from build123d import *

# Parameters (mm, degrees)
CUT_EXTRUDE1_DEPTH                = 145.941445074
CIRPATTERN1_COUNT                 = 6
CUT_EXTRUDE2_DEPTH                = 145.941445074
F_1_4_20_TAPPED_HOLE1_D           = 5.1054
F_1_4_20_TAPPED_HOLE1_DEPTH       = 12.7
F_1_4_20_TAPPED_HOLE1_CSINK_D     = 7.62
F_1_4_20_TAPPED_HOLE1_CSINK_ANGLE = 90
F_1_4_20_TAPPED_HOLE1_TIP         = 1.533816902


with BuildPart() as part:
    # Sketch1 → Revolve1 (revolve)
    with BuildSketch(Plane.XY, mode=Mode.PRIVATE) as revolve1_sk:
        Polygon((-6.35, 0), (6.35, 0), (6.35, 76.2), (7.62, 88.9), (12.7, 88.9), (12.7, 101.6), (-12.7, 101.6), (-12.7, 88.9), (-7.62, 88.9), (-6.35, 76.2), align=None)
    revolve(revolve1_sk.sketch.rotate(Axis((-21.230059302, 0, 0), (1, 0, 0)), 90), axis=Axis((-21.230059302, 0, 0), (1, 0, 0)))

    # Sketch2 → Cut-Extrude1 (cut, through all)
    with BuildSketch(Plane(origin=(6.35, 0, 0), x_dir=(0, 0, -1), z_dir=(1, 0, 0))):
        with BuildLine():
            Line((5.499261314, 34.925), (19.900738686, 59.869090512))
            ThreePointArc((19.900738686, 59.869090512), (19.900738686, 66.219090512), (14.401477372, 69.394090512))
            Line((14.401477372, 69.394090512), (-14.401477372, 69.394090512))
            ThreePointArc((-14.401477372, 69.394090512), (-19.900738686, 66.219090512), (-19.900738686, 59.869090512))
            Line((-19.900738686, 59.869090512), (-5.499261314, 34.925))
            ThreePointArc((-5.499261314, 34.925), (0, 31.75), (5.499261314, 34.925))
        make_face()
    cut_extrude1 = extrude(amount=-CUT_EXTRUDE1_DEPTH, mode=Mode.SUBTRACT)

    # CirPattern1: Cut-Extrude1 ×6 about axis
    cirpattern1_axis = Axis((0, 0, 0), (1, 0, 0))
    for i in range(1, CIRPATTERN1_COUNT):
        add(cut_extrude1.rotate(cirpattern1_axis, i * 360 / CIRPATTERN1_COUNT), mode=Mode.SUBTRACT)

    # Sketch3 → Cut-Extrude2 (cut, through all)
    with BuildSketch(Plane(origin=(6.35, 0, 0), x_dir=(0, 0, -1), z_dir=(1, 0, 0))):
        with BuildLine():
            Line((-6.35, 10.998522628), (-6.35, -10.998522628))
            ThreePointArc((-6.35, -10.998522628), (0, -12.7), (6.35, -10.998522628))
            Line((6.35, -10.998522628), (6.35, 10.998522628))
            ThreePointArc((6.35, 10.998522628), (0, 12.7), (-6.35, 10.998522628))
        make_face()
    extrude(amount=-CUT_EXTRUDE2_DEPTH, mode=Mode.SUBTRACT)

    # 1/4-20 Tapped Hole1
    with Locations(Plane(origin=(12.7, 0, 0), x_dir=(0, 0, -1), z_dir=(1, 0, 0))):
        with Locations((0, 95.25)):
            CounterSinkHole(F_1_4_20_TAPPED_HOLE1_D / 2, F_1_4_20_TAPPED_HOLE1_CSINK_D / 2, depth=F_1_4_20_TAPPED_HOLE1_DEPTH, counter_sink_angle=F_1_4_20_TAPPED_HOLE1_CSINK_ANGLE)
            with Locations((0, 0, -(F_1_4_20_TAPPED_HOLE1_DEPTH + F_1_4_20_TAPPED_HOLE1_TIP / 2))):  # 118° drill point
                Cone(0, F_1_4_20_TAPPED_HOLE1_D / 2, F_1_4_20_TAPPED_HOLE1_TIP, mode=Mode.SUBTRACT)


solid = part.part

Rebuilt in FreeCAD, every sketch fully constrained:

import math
import FreeCAD as App
import Part
import Sketcher
Q = App.Units.Quantity


def add_polygon(sketch, points):
    """Adds a closed chain of lines whose ends are joined by coincident constraints."""
    first, n = sketch.GeometryCount, len(points)
    for a, b in zip(points, points[1:] + points[:1]):
        sketch.addGeometry(Part.LineSegment(App.Vector(*a, 0), App.Vector(*b, 0)), False)
    for i in range(n):
        sketch.addConstraint(Sketcher.Constraint("Coincident", first + i, 2, first + (i + 1) % n, 1))

doc = App.newDocument("Part")
params = doc.addObject("Spreadsheet::Sheet", "Params")
for row, (alias, value) in enumerate([
    ("sketch1_width", "1 in"),
    ("sketch1_height", "3 in"),
    ("sketch1_width2", "0.5 in"),
    ("sketch1_width3", "0.2 in"),
    ("revolution_angle", "360 deg"),
    ("sketch2_radius", "0.25 in"),
    ("sketch3_radius", "0.5 in"),
    ("sketch4_diameter", "0.201 in"),
    ("hole_diameter", "0.201 in"),
    ("hole_depth", "0.5 in"),
    ("hole_csink_diameter", "0.3 in"),
], start=1):
    params.set(f"A{row}", alias)
    params.set(f"B{row}", "=" + value)
    params.setAlias(f"B{row}", alias)

body = doc.addObject("PartDesign::Body", "Body")

# Sketch on XY plane
sketch1 = doc.addObject("Sketcher::SketchObject", "Sketch")
body.addObject(sketch1)
sketch1.AttachmentSupport = (doc.XY_Plane, [""])
sketch1.MapMode = "FlatFace"
add_polygon(sketch1, [(-6, 0), (6, 0), (6, 76), (8, 89), (13, 89), (13, 102), (-13, 102), (-13, 89), (-8, 89), (-6, 76)])  # lines 0-9
sketch1.addConstraint(Sketcher.Constraint("Horizontal", 0))
sketch1.addConstraint(Sketcher.Constraint("Vertical", 1))
sketch1.addConstraint(Sketcher.Constraint("Horizontal", 3))
sketch1.addConstraint(Sketcher.Constraint("Vertical", 4))
sketch1.addConstraint(Sketcher.Constraint("Horizontal", 5))
sketch1.addConstraint(Sketcher.Constraint("Vertical", 6))
sketch1.addConstraint(Sketcher.Constraint("Horizontal", 7))
sketch1.addConstraint(Sketcher.Constraint("Vertical", 9))
sketch1.addConstraint(Sketcher.Constraint("Symmetric", 0, 2, 9, 2, -1, 1))
sketch1.addConstraint(Sketcher.Constraint("Symmetric", 3, 2, 6, 2, -2))
sketch1.addConstraint(Sketcher.Constraint("Horizontal", 1, 2, 8, 2))
sketch1.addConstraint(Sketcher.Constraint("Equal", 3, 7))
sketch1.addConstraint(Sketcher.Constraint("Equal", 0, 4))
sketch1.addConstraint(Sketcher.Constraint("DistanceX", 5, 2, 5, 1, Q("1 in")))
sketch1.addConstraint(Sketcher.Constraint("DistanceY", 1, 1, 1, 2, Q("3 in")))
sketch1.addConstraint(Sketcher.Constraint("DistanceX", 0, 1, 0, 2, Q("0.5 in")))
sketch1.addConstraint(Sketcher.Constraint("DistanceX", 3, 1, 3, 2, Q("0.2 in")))
sketch1.addConstraint(Sketcher.Constraint("DistanceY", -1, 1, 4, 2, Q("4 in")))
sketch1.setExpression("Constraints[23]", "Params.sketch1_width")
sketch1.setExpression("Constraints[24]", "Params.sketch1_height")
sketch1.setExpression("Constraints[25]", "Params.sketch1_width2")
sketch1.setExpression("Constraints[26]", "Params.sketch1_width3")
revolution = doc.addObject("PartDesign::Revolution", "Revolution")
body.addObject(revolution)
revolution.Profile = sketch1
revolution.ReferenceAxis = (sketch1, ["H_Axis"])
revolution.setExpression("Angle", "Params.revolution_angle")

# Sketch on YZ plane
sketch2 = doc.addObject("Sketcher::SketchObject", "Sketch001")
body.addObject(sketch2)
sketch2.AttachmentSupport = (doc.YZ_Plane, [""])
sketch2.MapMode = "FlatFace"
sketch2.AttachmentOffset = App.Placement(App.Vector(0, 0, 0.25 * 25.4), App.Rotation())
sketch2.addGeometry(Part.LineSegment(App.Vector(35, -5, 0), App.Vector(60, -20, 0)), False)
sketch2.addGeometry(Part.ArcOfCircle(Part.Circle(App.Vector(63, -14, 0), App.Vector(0, 0, 1), 6), math.radians(-120), math.radians(0)), False)
sketch2.addGeometry(Part.LineSegment(App.Vector(69, -14, 0), App.Vector(69, 14, 0)), False)
sketch2.addGeometry(Part.ArcOfCircle(Part.Circle(App.Vector(63, 14, 0), App.Vector(0, 0, 1), 6), math.radians(0), math.radians(120)), False)
sketch2.addGeometry(Part.LineSegment(App.Vector(60, 20, 0), App.Vector(35, 5, 0)), False)
sketch2.addGeometry(Part.ArcOfCircle(Part.Circle(App.Vector(38, 0, 0), App.Vector(0, 0, 1), 6), math.radians(120), math.radians(240)), False)
sketch2.addConstraint(Sketcher.Constraint("Tangent", 0, 2, 1, 1))
sketch2.addConstraint(Sketcher.Constraint("Tangent", 1, 2, 2, 1))
sketch2.addConstraint(Sketcher.Constraint("Tangent", 2, 2, 3, 1))
sketch2.addConstraint(Sketcher.Constraint("Tangent", 3, 2, 4, 1))
sketch2.addConstraint(Sketcher.Constraint("Tangent", 4, 2, 5, 1))
sketch2.addConstraint(Sketcher.Constraint("Tangent", 5, 2, 0, 1))
sketch2.addConstraint(Sketcher.Constraint("Vertical", 2))
sketch2.addConstraint(Sketcher.Constraint("Equal", 1, 3))
sketch2.addConstraint(Sketcher.Constraint("Equal", 3, 5))
sketch2.addConstraint(Sketcher.Constraint("Symmetric", 0, 2, 3, 2, -1))
sketch2.addConstraint(Sketcher.Constraint("Radius", 1, Q("0.25 in")))
sketch2.addConstraint(Sketcher.Constraint("Angle", 0, Q("-30 deg")))
sketch2.addConstraint(Sketcher.Constraint("DistanceX", -1, 1, 5, 3, Q("1.5 in")))
sketch2.addConstraint(Sketcher.Constraint("DistanceY", 2, 1, 2, 2, 28.802955))
sketch2.setExpression("Constraints[10]", "Params.sketch2_radius")
pocket1 = doc.addObject("PartDesign::Pocket", "Pocket")
body.addObject(pocket1)
pocket1.Profile = sketch2
pocket1.Type = "ThroughAll"
doc.recompute()

polarpattern = doc.addObject("PartDesign::PolarPattern", "PolarPattern")
body.addObject(polarpattern)
polarpattern.Originals = [pocket1]
polarpattern.Axis = (doc.X_Axis, [""])
polarpattern.Angle = 360
polarpattern.Occurrences = 6
body.Tip = polarpattern

# Sketch on YZ plane
sketch3 = doc.addObject("Sketcher::SketchObject", "Sketch002")
body.addObject(sketch3)
sketch3.AttachmentSupport = (doc.YZ_Plane, [""])
sketch3.MapMode = "FlatFace"
sketch3.AttachmentOffset = App.Placement(App.Vector(0, 0, 0.25 * 25.4), App.Rotation())
sketch3.addGeometry(Part.LineSegment(App.Vector(11, 6, 0), App.Vector(-11, 6, 0)), False)
sketch3.addGeometry(Part.ArcOfCircle(Part.Circle(App.Vector(0, 0, 0), App.Vector(0, 0, 1), 13), math.radians(150), math.radians(210)), False)
sketch3.addGeometry(Part.LineSegment(App.Vector(-11, -6, 0), App.Vector(11, -6, 0)), False)
sketch3.addGeometry(Part.ArcOfCircle(Part.Circle(App.Vector(0, 0, 0), App.Vector(0, 0, 1), 13), math.radians(-30), math.radians(30)), False)
sketch3.addConstraint(Sketcher.Constraint("Coincident", 0, 2, 1, 1))
sketch3.addConstraint(Sketcher.Constraint("Coincident", 1, 2, 2, 1))
sketch3.addConstraint(Sketcher.Constraint("Coincident", 2, 2, 3, 1))
sketch3.addConstraint(Sketcher.Constraint("Coincident", 3, 2, 0, 1))
sketch3.addConstraint(Sketcher.Constraint("Horizontal", 0))
sketch3.addConstraint(Sketcher.Constraint("Horizontal", 2))
sketch3.addConstraint(Sketcher.Constraint("Coincident", 1, 3, -1, 1))
sketch3.addConstraint(Sketcher.Constraint("Coincident", 3, 3, -1, 1))
sketch3.addConstraint(Sketcher.Constraint("Equal", 1, 3))
sketch3.addConstraint(Sketcher.Constraint("Vertical", 0, 2, 1, 2))
sketch3.addConstraint(Sketcher.Constraint("Radius", 1, Q("0.5 in")))
sketch3.addConstraint(Sketcher.Constraint("DistanceY", 1, 2, 0, 2, Q("0.5 in")))
sketch3.setExpression("Constraints[10]", "Params.sketch3_radius")
pocket2 = doc.addObject("PartDesign::Pocket", "Pocket001")
body.addObject(pocket2)
pocket2.Profile = sketch3
pocket2.Type = "ThroughAll"

# Sketch on YZ plane
sketch4 = doc.addObject("Sketcher::SketchObject", "Sketch003")
body.addObject(sketch4)
sketch4.AttachmentSupport = (doc.YZ_Plane, [""])
sketch4.MapMode = "FlatFace"
sketch4.AttachmentOffset = App.Placement(App.Vector(0, 0, 0.5 * 25.4), App.Rotation())
sketch4.addGeometry(Part.Circle(App.Vector(95.2, 0, 0), App.Vector(0, 0, 1), 2.6), False)
sketch4.addConstraint(Sketcher.Constraint("PointOnObject", 0, 3, -1))
sketch4.addConstraint(Sketcher.Constraint("Diameter", 0, Q("0.201 in")))
sketch4.addConstraint(Sketcher.Constraint("DistanceX", -1, 1, 0, 3, Q("3.75 in")))
sketch4.setExpression("Constraints[1]", "Params.sketch4_diameter")
doc.recompute()
hole = doc.addObject("PartDesign::Hole", "Hole")
body.addObject(hole)
hole.Profile = sketch4
hole.ThreadType = "None"
hole.setExpression("Diameter", "Params.hole_diameter")
hole.DepthType = "Dimension"
hole.setExpression("Depth", "Params.hole_depth")
hole.DrillPoint = "Angled"
hole.DrillPointAngle = 118
hole.HoleCutType = "Countersink"
hole.setExpression("HoleCutDiameter", "Params.hole_csink_diameter")
hole.HoleCutCountersinkAngle = 90

doc.recompute()
